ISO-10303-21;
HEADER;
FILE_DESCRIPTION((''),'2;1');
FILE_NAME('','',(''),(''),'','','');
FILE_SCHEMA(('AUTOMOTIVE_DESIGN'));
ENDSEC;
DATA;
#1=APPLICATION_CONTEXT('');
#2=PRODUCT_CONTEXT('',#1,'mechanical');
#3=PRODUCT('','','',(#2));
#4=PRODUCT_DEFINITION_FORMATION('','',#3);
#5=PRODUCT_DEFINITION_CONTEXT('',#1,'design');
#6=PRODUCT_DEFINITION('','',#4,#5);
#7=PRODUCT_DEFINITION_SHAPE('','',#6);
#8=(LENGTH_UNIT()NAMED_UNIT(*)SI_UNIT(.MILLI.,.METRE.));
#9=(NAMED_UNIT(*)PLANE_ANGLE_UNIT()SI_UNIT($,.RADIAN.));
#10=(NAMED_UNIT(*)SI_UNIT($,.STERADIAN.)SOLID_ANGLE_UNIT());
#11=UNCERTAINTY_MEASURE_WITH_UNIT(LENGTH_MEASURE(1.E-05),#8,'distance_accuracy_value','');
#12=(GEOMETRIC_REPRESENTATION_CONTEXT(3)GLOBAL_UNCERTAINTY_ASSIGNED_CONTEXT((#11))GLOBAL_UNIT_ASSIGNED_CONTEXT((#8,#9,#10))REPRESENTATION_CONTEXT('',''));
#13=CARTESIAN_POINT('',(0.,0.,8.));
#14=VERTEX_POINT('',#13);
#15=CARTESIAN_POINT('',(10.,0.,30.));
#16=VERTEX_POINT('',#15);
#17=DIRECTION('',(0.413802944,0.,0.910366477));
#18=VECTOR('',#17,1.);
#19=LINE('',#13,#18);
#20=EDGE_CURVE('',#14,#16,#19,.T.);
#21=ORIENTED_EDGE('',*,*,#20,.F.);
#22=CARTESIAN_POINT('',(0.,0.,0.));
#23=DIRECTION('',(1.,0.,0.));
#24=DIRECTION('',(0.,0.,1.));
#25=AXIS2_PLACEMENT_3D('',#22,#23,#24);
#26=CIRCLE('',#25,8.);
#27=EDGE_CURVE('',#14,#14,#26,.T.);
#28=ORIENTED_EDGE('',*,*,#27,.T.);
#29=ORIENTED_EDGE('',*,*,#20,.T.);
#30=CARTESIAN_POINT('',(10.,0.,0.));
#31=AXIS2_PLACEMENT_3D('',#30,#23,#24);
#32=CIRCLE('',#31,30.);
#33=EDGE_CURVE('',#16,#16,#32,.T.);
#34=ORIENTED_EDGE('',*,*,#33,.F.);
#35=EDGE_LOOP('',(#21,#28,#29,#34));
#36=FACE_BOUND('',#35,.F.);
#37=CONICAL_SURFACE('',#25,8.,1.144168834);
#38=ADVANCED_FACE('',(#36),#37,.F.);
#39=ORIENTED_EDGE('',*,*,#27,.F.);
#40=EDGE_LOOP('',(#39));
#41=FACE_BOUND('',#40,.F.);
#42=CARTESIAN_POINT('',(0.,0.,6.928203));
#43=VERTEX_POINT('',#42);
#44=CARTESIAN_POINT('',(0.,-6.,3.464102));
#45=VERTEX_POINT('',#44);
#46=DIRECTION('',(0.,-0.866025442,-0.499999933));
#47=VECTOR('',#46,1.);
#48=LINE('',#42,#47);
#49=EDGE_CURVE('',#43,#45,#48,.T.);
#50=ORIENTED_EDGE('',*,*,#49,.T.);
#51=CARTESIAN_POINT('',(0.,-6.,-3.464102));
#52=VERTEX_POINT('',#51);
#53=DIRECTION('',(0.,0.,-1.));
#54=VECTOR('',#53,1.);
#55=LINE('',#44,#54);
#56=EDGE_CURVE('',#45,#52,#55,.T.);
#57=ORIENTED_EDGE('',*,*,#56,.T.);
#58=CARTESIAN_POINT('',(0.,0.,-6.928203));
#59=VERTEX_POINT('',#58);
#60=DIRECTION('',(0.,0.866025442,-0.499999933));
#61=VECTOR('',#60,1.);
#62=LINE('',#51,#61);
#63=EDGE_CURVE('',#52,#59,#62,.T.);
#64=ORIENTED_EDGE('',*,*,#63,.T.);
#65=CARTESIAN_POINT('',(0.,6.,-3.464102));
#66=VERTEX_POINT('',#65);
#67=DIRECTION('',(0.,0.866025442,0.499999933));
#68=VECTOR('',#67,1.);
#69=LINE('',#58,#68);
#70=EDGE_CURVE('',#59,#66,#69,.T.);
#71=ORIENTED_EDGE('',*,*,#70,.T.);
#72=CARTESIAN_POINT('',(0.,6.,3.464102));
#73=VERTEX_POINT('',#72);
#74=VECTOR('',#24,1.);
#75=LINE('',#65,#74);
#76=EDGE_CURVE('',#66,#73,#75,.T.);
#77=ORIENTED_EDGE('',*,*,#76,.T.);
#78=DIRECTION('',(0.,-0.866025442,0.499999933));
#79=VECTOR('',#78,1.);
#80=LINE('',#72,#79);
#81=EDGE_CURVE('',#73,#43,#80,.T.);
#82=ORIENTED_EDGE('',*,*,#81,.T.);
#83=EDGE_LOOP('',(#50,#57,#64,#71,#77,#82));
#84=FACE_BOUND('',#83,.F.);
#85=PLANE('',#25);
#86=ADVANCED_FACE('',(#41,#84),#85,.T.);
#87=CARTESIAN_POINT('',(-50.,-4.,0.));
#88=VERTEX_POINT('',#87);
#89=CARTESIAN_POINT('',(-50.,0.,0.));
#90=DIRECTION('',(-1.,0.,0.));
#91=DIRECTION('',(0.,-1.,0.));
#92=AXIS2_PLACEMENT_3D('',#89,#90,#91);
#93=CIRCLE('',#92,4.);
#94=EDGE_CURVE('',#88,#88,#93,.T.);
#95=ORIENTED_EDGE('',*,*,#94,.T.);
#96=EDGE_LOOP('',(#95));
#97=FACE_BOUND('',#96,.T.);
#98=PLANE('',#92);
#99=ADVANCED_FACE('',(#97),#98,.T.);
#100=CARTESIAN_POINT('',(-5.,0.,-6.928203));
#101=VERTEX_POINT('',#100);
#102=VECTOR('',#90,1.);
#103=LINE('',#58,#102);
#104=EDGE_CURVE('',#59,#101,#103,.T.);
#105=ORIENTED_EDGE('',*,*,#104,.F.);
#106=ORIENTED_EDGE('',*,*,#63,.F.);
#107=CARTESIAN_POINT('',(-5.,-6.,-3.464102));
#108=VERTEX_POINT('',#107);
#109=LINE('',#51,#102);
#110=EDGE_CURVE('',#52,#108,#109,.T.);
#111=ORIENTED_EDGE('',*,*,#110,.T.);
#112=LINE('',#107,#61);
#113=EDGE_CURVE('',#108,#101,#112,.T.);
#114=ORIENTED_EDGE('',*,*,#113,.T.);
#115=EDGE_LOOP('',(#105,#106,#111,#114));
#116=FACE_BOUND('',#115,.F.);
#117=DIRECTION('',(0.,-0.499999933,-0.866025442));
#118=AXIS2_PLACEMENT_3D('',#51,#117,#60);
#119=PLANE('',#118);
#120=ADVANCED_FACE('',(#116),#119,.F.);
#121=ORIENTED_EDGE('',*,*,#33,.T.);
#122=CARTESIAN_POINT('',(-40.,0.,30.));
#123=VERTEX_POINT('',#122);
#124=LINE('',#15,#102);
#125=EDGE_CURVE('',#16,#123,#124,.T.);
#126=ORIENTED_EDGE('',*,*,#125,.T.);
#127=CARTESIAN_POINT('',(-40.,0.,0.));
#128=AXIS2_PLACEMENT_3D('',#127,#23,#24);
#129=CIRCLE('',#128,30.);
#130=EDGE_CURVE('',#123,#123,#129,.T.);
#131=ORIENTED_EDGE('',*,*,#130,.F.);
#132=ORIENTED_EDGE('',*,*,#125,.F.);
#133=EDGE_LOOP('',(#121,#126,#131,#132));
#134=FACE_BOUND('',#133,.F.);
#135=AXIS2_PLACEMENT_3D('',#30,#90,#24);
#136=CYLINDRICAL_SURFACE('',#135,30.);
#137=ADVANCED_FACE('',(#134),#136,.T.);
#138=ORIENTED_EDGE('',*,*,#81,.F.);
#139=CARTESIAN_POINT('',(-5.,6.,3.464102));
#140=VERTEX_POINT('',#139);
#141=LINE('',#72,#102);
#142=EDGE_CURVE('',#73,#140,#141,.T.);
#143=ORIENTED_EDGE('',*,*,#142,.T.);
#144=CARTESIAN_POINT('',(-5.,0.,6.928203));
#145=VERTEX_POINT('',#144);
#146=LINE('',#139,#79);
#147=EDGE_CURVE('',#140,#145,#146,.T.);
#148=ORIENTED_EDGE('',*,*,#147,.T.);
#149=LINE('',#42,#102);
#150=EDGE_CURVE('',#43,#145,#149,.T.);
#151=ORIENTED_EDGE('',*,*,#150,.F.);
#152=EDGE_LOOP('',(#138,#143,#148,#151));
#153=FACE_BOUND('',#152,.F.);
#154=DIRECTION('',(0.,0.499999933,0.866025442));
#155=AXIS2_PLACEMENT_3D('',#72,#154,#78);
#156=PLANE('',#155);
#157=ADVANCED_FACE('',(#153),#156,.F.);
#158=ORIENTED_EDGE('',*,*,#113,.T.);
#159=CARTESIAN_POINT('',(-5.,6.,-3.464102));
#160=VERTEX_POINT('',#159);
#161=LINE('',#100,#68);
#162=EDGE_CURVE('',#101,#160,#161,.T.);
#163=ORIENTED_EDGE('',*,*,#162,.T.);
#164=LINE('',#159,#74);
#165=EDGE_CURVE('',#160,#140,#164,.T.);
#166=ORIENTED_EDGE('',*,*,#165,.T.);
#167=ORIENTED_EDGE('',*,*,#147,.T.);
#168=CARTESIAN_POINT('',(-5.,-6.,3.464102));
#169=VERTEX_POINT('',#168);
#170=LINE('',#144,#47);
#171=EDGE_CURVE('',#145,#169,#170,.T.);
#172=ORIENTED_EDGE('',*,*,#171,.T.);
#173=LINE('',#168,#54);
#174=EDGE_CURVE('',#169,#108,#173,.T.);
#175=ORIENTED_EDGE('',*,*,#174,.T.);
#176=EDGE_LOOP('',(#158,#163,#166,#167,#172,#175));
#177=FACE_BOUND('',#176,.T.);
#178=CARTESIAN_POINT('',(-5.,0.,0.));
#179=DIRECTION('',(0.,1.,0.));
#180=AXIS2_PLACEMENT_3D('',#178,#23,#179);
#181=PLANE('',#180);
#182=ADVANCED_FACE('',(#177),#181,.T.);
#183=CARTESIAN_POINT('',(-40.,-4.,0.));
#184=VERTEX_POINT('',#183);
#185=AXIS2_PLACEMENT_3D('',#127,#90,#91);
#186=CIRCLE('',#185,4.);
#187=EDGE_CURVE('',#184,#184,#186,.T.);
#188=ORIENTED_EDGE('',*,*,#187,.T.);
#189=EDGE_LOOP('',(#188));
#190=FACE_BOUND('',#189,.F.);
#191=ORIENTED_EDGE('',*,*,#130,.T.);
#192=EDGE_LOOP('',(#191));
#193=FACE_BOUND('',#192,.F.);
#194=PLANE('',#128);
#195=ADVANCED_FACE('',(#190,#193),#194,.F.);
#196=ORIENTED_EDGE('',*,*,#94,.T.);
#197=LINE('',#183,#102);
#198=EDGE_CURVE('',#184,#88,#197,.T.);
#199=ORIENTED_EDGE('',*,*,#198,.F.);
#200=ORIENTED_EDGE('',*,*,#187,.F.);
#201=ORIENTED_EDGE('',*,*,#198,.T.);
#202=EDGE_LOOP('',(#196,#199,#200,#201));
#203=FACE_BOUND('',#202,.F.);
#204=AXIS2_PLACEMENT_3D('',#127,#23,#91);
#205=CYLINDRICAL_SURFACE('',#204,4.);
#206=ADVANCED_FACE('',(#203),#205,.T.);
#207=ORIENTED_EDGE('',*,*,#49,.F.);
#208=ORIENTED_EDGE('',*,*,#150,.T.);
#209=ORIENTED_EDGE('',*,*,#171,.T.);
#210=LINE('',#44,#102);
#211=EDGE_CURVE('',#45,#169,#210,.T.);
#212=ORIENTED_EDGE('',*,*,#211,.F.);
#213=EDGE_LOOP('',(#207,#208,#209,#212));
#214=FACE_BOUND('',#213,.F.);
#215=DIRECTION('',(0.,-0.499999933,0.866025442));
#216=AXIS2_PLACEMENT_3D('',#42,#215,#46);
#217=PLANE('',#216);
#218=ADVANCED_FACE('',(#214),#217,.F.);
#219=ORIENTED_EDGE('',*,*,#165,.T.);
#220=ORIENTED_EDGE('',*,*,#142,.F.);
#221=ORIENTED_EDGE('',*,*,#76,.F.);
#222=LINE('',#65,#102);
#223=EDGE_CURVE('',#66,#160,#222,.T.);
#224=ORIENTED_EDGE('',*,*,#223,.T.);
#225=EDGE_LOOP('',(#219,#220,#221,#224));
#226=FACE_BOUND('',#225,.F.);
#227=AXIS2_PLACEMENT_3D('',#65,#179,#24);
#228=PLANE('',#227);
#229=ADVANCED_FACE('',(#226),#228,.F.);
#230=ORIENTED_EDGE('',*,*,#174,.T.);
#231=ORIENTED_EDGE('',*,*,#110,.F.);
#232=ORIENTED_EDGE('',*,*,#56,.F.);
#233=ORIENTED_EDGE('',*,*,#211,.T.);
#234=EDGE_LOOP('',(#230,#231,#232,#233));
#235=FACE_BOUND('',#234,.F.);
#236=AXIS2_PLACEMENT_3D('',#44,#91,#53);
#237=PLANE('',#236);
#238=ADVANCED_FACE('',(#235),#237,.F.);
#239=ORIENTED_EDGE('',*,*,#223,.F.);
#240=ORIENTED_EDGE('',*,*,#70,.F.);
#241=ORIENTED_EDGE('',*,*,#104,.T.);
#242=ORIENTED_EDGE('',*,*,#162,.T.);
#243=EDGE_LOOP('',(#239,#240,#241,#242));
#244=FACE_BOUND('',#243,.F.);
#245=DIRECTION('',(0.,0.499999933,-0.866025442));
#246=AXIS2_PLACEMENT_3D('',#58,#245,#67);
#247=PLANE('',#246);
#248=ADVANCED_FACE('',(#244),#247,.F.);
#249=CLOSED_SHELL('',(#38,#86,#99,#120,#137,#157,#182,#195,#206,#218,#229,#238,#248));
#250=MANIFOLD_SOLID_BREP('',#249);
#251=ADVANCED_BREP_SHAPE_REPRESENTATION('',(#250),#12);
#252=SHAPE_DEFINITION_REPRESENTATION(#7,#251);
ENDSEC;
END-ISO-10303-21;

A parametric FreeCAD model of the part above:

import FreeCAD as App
import Part
import Sketcher

V = App.Vector
Q = App.Units.Quantity

doc = App.newDocument("Part")
body = doc.addObject("PartDesign::Body", "Body")

sketch1 = body.newObject("Sketcher::SketchObject", "Sketch")
sketch1.AttachmentSupport = (doc.getObject("XZ_Plane"), [""])
sketch1.MapMode = "FlatFace"
sketch1.addGeometry([
    Part.LineSegment(V(10, 30, 0), V(-40, 30, 0)),
    Part.LineSegment(V(-40, 30, 0), V(-40, 0, 0)),
    Part.LineSegment(V(-40, 0, 0), V(0, 0, 0)),
    Part.LineSegment(V(0, 0, 0), V(0, 8, 0)),
    Part.LineSegment(V(0, 8, 0), V(10, 30, 0)),
], False)
sketch1.addConstraint([
    Sketcher.Constraint("Coincident", 0, 2, 1, 1),
    Sketcher.Constraint("Coincident", 1, 2, 2, 1),
    Sketcher.Constraint("Coincident", 2, 2, 3, 1),
    Sketcher.Constraint("Coincident", 3, 2, 4, 1),
    Sketcher.Constraint("Coincident", 4, 2, 0, 1),
    Sketcher.Constraint("Horizontal", 0),
    Sketcher.Constraint("Vertical", 1),
    Sketcher.Constraint("Horizontal", 2),
    Sketcher.Constraint("Vertical", 3),
    Sketcher.Constraint("Coincident", 2, 2, -1, 1),
    Sketcher.Constraint("DistanceX", 0, 2, 0, 1, 50.0),
    Sketcher.Constraint("DistanceX", 2, 1, 2, 2, 40.0),
    Sketcher.Constraint("DistanceY", 1, 2, 1, 1, 30.0),
    Sketcher.Constraint("DistanceY", 3, 1, 3, 2, 8.0),
])
revolution = body.newObject("PartDesign::Revolution", "Revolution")
revolution.Profile = sketch1
revolution.ReferenceAxis = (sketch1, ["H_Axis"])
revolution.Angle = 360

sketch2 = body.newObject("Sketcher::SketchObject", "Sketch001")
sketch2.AttachmentSupport = (doc.getObject("YZ_Plane"), [""])
sketch2.MapMode = "FlatFace"
sketch2.addGeometry([
    Part.LineSegment(V(0, -7, 0), V(6, -3, 0)),
    Part.LineSegment(V(6, -3, 0), V(6, 3, 0)),
    Part.LineSegment(V(6, 3, 0), V(0, 7, 0)),
    Part.LineSegment(V(0, 7, 0), V(-6, 3, 0)),
    Part.LineSegment(V(-6, 3, 0), V(-6, -3, 0)),
    Part.LineSegment(V(-6, -3, 0), V(0, -7, 0)),
], False)
sketch2.addConstraint([
    Sketcher.Constraint("Coincident", 0, 2, 1, 1),
    Sketcher.Constraint("Coincident", 1, 2, 2, 1),
    Sketcher.Constraint("Coincident", 2, 2, 3, 1),
    Sketcher.Constraint("Coincident", 3, 2, 4, 1),
    Sketcher.Constraint("Coincident", 4, 2, 5, 1),
    Sketcher.Constraint("Coincident", 5, 2, 0, 1),
    Sketcher.Constraint("Vertical", 1),
    Sketcher.Constraint("Vertical", 4),
    Sketcher.Constraint("Symmetric", 0, 2, 3, 2, -1, 1),
    Sketcher.Constraint("Symmetric", 2, 2, 5, 2, -1, 1),
    Sketcher.Constraint("PointOnObject", 2, 2, -2),
    Sketcher.Constraint("Parallel", 2, 5),
    Sketcher.Constraint("Horizontal", 1, 2, 3, 2),
    Sketcher.Constraint("Angle", 0, Q("29.999996 deg")),
    Sketcher.Constraint("DistanceX", -1, 1, 0, 2, 6.0),
    Sketcher.Constraint("DistanceY", 0, 2, -1, 1, 3.464102),
])
pocket1 = body.newObject("PartDesign::Pocket", "Pocket")
pocket1.Profile = sketch2
pocket1.Length = 5

sketch3 = body.newObject("Sketcher::SketchObject", "Sketch002")
sketch3.AttachmentSupport = (doc.getObject("YZ_Plane"), [""])
sketch3.MapMode = "FlatFace"
sketch3.AttachmentOffset = App.Placement(V(0, 0, -40), App.Rotation())
sketch3.addGeometry(Part.Circle(V(0, 0, 0), V(0, 0, 1), 4), False)
sketch3.addConstraint([
    Sketcher.Constraint("Coincident", 0, 3, -1, 1),
    Sketcher.Constraint("Diameter", 0, 8.0),
])
pad1 = body.newObject("PartDesign::Pad", "Pad")
pad1.Profile = sketch3
pad1.Length = 10
pad1.Reversed = True

doc.recompute()
